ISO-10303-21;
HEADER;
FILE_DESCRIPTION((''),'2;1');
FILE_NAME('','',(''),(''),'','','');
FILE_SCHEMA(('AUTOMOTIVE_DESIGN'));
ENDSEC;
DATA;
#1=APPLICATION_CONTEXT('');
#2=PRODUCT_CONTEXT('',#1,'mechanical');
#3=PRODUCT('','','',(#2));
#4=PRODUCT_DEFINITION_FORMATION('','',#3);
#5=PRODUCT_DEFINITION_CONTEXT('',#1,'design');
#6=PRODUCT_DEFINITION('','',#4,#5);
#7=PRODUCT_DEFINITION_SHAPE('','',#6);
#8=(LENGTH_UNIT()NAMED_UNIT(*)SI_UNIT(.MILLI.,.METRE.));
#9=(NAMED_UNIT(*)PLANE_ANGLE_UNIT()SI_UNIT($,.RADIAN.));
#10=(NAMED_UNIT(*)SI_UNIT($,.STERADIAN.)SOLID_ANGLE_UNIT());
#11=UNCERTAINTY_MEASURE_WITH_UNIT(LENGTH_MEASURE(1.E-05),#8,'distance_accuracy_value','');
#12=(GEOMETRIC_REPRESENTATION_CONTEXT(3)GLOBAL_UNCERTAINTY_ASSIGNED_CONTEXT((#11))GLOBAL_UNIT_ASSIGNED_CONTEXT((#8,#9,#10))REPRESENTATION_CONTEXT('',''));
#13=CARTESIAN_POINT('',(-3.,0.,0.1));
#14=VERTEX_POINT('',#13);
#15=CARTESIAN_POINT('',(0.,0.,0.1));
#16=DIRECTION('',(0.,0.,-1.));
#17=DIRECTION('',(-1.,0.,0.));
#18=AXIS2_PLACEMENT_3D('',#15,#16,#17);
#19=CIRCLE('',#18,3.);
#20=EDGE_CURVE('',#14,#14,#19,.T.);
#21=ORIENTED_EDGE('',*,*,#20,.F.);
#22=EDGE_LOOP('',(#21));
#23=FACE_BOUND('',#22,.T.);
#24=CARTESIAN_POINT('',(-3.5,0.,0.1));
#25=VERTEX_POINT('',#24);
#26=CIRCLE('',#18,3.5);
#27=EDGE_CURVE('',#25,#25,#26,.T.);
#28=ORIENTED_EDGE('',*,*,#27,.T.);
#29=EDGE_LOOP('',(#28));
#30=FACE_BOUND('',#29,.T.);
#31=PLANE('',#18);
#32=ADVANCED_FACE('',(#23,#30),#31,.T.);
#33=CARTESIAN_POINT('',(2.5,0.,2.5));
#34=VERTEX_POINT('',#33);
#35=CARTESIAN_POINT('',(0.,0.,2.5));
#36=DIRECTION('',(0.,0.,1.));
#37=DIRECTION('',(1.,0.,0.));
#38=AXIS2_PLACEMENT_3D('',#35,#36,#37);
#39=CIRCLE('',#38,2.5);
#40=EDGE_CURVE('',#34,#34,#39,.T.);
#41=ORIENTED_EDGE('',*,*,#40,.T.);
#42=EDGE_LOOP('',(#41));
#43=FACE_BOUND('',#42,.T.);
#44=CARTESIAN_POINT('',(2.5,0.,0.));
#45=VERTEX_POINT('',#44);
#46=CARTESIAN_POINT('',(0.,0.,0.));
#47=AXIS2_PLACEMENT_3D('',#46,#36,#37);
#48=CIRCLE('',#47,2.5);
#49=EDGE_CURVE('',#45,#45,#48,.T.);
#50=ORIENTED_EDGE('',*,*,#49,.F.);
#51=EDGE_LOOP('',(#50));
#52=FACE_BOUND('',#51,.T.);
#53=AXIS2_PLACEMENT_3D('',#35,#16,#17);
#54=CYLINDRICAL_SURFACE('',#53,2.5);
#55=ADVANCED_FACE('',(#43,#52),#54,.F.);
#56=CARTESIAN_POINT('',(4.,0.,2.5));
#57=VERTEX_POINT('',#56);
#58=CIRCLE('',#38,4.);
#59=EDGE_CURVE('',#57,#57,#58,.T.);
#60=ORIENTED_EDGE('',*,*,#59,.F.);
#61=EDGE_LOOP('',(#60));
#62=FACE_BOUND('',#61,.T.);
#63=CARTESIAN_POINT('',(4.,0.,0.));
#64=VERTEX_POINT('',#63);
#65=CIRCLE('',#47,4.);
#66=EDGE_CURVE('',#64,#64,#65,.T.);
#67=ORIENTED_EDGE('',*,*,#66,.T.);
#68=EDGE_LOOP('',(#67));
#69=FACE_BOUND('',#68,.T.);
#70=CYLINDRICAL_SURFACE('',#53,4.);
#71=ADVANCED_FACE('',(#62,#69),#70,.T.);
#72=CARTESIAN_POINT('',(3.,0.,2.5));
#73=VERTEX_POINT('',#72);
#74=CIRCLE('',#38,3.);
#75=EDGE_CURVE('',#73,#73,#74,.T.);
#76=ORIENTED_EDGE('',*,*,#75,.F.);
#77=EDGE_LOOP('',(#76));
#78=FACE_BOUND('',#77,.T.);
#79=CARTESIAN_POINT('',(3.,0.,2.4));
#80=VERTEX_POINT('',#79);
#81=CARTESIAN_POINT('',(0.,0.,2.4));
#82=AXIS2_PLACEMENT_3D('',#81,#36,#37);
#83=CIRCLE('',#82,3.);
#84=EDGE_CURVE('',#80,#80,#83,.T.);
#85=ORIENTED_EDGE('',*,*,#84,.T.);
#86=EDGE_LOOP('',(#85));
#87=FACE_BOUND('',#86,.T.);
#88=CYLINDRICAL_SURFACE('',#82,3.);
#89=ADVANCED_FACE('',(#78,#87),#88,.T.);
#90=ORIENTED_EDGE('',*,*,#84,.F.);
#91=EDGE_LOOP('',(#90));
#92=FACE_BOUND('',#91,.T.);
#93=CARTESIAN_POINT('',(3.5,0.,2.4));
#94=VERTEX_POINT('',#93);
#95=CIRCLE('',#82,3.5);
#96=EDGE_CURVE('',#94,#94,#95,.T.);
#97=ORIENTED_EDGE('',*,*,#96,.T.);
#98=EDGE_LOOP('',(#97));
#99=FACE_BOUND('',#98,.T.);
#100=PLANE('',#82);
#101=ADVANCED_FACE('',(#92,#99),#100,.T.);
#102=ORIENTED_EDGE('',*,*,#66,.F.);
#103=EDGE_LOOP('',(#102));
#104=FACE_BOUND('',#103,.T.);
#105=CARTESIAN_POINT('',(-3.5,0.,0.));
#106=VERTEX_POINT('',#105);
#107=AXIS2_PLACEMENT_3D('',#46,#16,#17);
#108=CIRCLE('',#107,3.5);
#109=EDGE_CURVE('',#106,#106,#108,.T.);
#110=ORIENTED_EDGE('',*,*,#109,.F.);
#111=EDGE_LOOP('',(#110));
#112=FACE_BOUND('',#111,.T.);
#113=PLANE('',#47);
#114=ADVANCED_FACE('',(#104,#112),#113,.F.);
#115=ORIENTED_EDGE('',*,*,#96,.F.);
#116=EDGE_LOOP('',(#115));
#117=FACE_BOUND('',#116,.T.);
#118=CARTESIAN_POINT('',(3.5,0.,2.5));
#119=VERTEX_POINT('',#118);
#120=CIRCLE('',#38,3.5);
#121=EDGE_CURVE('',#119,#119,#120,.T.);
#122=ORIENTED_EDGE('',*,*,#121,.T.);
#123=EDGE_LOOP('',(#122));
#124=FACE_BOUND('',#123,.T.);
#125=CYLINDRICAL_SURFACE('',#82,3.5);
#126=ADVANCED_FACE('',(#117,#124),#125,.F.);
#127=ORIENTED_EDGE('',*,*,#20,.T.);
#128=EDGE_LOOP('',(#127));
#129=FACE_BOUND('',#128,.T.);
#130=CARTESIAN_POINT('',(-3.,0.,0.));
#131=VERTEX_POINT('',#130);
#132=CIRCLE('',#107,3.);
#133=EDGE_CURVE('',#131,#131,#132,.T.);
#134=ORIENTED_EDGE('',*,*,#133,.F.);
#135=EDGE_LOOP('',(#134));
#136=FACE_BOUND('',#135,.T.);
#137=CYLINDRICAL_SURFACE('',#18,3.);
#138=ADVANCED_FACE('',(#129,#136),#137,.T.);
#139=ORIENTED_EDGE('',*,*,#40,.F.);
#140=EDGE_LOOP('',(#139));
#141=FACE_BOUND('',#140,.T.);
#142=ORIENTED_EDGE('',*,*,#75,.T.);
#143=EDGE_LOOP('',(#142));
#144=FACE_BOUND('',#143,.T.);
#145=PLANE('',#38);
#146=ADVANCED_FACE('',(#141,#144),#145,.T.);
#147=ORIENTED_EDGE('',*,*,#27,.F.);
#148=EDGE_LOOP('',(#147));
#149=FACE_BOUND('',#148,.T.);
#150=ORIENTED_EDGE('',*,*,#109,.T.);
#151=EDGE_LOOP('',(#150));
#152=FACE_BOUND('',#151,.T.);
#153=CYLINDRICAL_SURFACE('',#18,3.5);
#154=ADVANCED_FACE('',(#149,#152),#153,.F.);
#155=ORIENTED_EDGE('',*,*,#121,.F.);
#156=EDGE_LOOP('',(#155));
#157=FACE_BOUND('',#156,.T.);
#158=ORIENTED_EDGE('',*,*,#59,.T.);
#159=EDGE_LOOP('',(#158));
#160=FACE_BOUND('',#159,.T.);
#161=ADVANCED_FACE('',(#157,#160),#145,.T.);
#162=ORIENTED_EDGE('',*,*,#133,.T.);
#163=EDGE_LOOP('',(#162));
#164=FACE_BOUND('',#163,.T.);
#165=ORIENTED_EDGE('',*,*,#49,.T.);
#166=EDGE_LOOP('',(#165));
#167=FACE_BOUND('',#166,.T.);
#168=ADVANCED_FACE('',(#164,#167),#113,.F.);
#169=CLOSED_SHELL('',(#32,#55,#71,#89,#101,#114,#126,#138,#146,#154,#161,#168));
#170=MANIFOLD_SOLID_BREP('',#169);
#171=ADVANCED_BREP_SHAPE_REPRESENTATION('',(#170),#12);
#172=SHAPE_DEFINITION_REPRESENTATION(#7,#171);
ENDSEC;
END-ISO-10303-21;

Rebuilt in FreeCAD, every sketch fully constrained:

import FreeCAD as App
import Part
import Sketcher

V = App.Vector

doc = App.newDocument("Part")
body = doc.addObject("PartDesign::Body", "Body")

sketch1 = body.newObject("Sketcher::SketchObject", "Sketch")
sketch1.AttachmentSupport = (doc.getObject("XY_Plane"), [""])
sketch1.MapMode = "FlatFace"
sketch1.addGeometry([
    Part.Circle(V(0, 0, 0), V(0, 0, 1), 4),
    Part.Circle(V(0, 0, 0), V(0, 0, 1), 2.5),
], False)
sketch1.addConstraint([
    Sketcher.Constraint("Coincident", 0, 3, -1, 1),
    Sketcher.Constraint("Coincident", 1, 3, -1, 1),
    Sketcher.Constraint("Diameter", 0, 8.0),
    Sketcher.Constraint("Diameter", 1, 5.0),
])
pad1 = body.newObject("PartDesign::Pad", "Pad")
pad1.Profile = sketch1
pad1.Length = 2.5

sketch2 = body.newObject("Sketcher::SketchObject", "Sketch001")
sketch2.AttachmentSupport = (doc.getObject("XY_Plane"), [""])
sketch2.MapMode = "FlatFace"
sketch2.addGeometry([
    Part.Circle(V(0, 0, 0), V(0, 0, 1), 3.5),
    Part.Circle(V(0, 0, 0), V(0, 0, 1), 3),
], False)
sketch2.addConstraint([
    Sketcher.Constraint("Coincident", 0, 3, -1, 1),
    Sketcher.Constraint("Coincident", 1, 3, -1, 1),
    Sketcher.Constraint("Diameter", 0, 7.0),
    Sketcher.Constraint("Diameter", 1, 6.0),
])
pocket1 = body.newObject("PartDesign::Pocket", "Pocket")
pocket1.Profile = sketch2
pocket1.Length = 0.1
pocket1.Reversed = True

sketch3 = body.newObject("Sketcher::SketchObject", "Sketch002")
sketch3.AttachmentSupport = (doc.getObject("XY_Plane"), [""])
sketch3.MapMode = "FlatFace"
sketch3.AttachmentOffset = App.Placement(V(0, 0, 2.4), App.Rotation())
sketch3.addGeometry([
    Part.Circle(V(0, 0, 0), V(0, 0, 1), 3.5),
    Part.Circle(V(0, 0, 0), V(0, 0, 1), 3),
], False)
sketch3.addConstraint([
    Sketcher.Constraint("Coincident", 0, 3, -1, 1),
    Sketcher.Constraint("Coincident", 1, 3, -1, 1),
    Sketcher.Constraint("Diameter", 0, 7.0),
    Sketcher.Constraint("Diameter", 1, 6.0),
])
pocket2 = body.newObject("PartDesign::Pocket", "Pocket001")
pocket2.Profile = sketch3
pocket2.Length = 0.1
pocket2.Reversed = True

doc.recompute()
